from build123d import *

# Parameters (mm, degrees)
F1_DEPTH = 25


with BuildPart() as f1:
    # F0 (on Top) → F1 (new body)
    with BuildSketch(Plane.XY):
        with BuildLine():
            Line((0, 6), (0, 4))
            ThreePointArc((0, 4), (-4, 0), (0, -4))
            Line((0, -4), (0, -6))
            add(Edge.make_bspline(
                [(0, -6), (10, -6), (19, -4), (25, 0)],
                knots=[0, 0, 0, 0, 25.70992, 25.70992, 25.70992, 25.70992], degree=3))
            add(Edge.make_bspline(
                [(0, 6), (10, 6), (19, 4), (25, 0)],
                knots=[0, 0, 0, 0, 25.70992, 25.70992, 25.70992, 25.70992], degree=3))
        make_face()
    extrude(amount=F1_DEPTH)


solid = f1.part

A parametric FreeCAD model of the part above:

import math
import FreeCAD as App
import Part
import Sketcher

doc = App.newDocument("Part")
body = doc.addObject("PartDesign::Body", "Body")

sketch1 = body.newObject("Sketcher::SketchObject", "Sketch")
sketch1.AttachmentSupport = (doc.getObject("XY_Plane"), [""])
sketch1.MapMode = "FlatFace"
sketch1.addGeometry([
    Part.LineSegment(App.Vector(0, 6, 0), App.Vector(0, 4, 0)),
    Part.ArcOfCircle(Part.Circle(App.Vector(0, 0, 0), App.Vector(0, 0, 1), 4), math.radians(90), math.radians(270)),
    Part.LineSegment(App.Vector(0, -4, 0), App.Vector(0, -6, 0)),
    Part.BSplineCurve([App.Vector(0, -6, 0), App.Vector(10, -6, 0), App.Vector(19, -4, 0), App.Vector(25, 0, 0)], [4, 4], [0, 25.70992], False, 3, [1, 1, 1, 1], False),
    Part.BSplineCurve([App.Vector(0, 6, 0), App.Vector(10, 6, 0), App.Vector(19, 4, 0), App.Vector(25, 0, 0)], [4, 4], [0, 25.70992], False, 3, [1, 1, 1, 1], False),
], False)
sketch1.addConstraint([
    Sketcher.Constraint("Block", 3),
    Sketcher.Constraint("Block", 4),
    Sketcher.Constraint("Coincident", 0, 2, 1, 1),
    Sketcher.Constraint("Coincident", 1, 2, 2, 1),
    Sketcher.Constraint("Coincident", 2, 2, 3, 1),
    Sketcher.Constraint("Coincident", 4, 1, 0, 1),
    Sketcher.Constraint("Vertical", 0),
    Sketcher.Constraint("Vertical", 2),
    Sketcher.Constraint("Coincident", 1, 3, -1, 1),
    Sketcher.Constraint("Radius", 1, 4.0),
])
pad1 = body.newObject("PartDesign::Pad", "Pad")
pad1.Profile = sketch1
pad1.Length = 25

doc.recompute()
